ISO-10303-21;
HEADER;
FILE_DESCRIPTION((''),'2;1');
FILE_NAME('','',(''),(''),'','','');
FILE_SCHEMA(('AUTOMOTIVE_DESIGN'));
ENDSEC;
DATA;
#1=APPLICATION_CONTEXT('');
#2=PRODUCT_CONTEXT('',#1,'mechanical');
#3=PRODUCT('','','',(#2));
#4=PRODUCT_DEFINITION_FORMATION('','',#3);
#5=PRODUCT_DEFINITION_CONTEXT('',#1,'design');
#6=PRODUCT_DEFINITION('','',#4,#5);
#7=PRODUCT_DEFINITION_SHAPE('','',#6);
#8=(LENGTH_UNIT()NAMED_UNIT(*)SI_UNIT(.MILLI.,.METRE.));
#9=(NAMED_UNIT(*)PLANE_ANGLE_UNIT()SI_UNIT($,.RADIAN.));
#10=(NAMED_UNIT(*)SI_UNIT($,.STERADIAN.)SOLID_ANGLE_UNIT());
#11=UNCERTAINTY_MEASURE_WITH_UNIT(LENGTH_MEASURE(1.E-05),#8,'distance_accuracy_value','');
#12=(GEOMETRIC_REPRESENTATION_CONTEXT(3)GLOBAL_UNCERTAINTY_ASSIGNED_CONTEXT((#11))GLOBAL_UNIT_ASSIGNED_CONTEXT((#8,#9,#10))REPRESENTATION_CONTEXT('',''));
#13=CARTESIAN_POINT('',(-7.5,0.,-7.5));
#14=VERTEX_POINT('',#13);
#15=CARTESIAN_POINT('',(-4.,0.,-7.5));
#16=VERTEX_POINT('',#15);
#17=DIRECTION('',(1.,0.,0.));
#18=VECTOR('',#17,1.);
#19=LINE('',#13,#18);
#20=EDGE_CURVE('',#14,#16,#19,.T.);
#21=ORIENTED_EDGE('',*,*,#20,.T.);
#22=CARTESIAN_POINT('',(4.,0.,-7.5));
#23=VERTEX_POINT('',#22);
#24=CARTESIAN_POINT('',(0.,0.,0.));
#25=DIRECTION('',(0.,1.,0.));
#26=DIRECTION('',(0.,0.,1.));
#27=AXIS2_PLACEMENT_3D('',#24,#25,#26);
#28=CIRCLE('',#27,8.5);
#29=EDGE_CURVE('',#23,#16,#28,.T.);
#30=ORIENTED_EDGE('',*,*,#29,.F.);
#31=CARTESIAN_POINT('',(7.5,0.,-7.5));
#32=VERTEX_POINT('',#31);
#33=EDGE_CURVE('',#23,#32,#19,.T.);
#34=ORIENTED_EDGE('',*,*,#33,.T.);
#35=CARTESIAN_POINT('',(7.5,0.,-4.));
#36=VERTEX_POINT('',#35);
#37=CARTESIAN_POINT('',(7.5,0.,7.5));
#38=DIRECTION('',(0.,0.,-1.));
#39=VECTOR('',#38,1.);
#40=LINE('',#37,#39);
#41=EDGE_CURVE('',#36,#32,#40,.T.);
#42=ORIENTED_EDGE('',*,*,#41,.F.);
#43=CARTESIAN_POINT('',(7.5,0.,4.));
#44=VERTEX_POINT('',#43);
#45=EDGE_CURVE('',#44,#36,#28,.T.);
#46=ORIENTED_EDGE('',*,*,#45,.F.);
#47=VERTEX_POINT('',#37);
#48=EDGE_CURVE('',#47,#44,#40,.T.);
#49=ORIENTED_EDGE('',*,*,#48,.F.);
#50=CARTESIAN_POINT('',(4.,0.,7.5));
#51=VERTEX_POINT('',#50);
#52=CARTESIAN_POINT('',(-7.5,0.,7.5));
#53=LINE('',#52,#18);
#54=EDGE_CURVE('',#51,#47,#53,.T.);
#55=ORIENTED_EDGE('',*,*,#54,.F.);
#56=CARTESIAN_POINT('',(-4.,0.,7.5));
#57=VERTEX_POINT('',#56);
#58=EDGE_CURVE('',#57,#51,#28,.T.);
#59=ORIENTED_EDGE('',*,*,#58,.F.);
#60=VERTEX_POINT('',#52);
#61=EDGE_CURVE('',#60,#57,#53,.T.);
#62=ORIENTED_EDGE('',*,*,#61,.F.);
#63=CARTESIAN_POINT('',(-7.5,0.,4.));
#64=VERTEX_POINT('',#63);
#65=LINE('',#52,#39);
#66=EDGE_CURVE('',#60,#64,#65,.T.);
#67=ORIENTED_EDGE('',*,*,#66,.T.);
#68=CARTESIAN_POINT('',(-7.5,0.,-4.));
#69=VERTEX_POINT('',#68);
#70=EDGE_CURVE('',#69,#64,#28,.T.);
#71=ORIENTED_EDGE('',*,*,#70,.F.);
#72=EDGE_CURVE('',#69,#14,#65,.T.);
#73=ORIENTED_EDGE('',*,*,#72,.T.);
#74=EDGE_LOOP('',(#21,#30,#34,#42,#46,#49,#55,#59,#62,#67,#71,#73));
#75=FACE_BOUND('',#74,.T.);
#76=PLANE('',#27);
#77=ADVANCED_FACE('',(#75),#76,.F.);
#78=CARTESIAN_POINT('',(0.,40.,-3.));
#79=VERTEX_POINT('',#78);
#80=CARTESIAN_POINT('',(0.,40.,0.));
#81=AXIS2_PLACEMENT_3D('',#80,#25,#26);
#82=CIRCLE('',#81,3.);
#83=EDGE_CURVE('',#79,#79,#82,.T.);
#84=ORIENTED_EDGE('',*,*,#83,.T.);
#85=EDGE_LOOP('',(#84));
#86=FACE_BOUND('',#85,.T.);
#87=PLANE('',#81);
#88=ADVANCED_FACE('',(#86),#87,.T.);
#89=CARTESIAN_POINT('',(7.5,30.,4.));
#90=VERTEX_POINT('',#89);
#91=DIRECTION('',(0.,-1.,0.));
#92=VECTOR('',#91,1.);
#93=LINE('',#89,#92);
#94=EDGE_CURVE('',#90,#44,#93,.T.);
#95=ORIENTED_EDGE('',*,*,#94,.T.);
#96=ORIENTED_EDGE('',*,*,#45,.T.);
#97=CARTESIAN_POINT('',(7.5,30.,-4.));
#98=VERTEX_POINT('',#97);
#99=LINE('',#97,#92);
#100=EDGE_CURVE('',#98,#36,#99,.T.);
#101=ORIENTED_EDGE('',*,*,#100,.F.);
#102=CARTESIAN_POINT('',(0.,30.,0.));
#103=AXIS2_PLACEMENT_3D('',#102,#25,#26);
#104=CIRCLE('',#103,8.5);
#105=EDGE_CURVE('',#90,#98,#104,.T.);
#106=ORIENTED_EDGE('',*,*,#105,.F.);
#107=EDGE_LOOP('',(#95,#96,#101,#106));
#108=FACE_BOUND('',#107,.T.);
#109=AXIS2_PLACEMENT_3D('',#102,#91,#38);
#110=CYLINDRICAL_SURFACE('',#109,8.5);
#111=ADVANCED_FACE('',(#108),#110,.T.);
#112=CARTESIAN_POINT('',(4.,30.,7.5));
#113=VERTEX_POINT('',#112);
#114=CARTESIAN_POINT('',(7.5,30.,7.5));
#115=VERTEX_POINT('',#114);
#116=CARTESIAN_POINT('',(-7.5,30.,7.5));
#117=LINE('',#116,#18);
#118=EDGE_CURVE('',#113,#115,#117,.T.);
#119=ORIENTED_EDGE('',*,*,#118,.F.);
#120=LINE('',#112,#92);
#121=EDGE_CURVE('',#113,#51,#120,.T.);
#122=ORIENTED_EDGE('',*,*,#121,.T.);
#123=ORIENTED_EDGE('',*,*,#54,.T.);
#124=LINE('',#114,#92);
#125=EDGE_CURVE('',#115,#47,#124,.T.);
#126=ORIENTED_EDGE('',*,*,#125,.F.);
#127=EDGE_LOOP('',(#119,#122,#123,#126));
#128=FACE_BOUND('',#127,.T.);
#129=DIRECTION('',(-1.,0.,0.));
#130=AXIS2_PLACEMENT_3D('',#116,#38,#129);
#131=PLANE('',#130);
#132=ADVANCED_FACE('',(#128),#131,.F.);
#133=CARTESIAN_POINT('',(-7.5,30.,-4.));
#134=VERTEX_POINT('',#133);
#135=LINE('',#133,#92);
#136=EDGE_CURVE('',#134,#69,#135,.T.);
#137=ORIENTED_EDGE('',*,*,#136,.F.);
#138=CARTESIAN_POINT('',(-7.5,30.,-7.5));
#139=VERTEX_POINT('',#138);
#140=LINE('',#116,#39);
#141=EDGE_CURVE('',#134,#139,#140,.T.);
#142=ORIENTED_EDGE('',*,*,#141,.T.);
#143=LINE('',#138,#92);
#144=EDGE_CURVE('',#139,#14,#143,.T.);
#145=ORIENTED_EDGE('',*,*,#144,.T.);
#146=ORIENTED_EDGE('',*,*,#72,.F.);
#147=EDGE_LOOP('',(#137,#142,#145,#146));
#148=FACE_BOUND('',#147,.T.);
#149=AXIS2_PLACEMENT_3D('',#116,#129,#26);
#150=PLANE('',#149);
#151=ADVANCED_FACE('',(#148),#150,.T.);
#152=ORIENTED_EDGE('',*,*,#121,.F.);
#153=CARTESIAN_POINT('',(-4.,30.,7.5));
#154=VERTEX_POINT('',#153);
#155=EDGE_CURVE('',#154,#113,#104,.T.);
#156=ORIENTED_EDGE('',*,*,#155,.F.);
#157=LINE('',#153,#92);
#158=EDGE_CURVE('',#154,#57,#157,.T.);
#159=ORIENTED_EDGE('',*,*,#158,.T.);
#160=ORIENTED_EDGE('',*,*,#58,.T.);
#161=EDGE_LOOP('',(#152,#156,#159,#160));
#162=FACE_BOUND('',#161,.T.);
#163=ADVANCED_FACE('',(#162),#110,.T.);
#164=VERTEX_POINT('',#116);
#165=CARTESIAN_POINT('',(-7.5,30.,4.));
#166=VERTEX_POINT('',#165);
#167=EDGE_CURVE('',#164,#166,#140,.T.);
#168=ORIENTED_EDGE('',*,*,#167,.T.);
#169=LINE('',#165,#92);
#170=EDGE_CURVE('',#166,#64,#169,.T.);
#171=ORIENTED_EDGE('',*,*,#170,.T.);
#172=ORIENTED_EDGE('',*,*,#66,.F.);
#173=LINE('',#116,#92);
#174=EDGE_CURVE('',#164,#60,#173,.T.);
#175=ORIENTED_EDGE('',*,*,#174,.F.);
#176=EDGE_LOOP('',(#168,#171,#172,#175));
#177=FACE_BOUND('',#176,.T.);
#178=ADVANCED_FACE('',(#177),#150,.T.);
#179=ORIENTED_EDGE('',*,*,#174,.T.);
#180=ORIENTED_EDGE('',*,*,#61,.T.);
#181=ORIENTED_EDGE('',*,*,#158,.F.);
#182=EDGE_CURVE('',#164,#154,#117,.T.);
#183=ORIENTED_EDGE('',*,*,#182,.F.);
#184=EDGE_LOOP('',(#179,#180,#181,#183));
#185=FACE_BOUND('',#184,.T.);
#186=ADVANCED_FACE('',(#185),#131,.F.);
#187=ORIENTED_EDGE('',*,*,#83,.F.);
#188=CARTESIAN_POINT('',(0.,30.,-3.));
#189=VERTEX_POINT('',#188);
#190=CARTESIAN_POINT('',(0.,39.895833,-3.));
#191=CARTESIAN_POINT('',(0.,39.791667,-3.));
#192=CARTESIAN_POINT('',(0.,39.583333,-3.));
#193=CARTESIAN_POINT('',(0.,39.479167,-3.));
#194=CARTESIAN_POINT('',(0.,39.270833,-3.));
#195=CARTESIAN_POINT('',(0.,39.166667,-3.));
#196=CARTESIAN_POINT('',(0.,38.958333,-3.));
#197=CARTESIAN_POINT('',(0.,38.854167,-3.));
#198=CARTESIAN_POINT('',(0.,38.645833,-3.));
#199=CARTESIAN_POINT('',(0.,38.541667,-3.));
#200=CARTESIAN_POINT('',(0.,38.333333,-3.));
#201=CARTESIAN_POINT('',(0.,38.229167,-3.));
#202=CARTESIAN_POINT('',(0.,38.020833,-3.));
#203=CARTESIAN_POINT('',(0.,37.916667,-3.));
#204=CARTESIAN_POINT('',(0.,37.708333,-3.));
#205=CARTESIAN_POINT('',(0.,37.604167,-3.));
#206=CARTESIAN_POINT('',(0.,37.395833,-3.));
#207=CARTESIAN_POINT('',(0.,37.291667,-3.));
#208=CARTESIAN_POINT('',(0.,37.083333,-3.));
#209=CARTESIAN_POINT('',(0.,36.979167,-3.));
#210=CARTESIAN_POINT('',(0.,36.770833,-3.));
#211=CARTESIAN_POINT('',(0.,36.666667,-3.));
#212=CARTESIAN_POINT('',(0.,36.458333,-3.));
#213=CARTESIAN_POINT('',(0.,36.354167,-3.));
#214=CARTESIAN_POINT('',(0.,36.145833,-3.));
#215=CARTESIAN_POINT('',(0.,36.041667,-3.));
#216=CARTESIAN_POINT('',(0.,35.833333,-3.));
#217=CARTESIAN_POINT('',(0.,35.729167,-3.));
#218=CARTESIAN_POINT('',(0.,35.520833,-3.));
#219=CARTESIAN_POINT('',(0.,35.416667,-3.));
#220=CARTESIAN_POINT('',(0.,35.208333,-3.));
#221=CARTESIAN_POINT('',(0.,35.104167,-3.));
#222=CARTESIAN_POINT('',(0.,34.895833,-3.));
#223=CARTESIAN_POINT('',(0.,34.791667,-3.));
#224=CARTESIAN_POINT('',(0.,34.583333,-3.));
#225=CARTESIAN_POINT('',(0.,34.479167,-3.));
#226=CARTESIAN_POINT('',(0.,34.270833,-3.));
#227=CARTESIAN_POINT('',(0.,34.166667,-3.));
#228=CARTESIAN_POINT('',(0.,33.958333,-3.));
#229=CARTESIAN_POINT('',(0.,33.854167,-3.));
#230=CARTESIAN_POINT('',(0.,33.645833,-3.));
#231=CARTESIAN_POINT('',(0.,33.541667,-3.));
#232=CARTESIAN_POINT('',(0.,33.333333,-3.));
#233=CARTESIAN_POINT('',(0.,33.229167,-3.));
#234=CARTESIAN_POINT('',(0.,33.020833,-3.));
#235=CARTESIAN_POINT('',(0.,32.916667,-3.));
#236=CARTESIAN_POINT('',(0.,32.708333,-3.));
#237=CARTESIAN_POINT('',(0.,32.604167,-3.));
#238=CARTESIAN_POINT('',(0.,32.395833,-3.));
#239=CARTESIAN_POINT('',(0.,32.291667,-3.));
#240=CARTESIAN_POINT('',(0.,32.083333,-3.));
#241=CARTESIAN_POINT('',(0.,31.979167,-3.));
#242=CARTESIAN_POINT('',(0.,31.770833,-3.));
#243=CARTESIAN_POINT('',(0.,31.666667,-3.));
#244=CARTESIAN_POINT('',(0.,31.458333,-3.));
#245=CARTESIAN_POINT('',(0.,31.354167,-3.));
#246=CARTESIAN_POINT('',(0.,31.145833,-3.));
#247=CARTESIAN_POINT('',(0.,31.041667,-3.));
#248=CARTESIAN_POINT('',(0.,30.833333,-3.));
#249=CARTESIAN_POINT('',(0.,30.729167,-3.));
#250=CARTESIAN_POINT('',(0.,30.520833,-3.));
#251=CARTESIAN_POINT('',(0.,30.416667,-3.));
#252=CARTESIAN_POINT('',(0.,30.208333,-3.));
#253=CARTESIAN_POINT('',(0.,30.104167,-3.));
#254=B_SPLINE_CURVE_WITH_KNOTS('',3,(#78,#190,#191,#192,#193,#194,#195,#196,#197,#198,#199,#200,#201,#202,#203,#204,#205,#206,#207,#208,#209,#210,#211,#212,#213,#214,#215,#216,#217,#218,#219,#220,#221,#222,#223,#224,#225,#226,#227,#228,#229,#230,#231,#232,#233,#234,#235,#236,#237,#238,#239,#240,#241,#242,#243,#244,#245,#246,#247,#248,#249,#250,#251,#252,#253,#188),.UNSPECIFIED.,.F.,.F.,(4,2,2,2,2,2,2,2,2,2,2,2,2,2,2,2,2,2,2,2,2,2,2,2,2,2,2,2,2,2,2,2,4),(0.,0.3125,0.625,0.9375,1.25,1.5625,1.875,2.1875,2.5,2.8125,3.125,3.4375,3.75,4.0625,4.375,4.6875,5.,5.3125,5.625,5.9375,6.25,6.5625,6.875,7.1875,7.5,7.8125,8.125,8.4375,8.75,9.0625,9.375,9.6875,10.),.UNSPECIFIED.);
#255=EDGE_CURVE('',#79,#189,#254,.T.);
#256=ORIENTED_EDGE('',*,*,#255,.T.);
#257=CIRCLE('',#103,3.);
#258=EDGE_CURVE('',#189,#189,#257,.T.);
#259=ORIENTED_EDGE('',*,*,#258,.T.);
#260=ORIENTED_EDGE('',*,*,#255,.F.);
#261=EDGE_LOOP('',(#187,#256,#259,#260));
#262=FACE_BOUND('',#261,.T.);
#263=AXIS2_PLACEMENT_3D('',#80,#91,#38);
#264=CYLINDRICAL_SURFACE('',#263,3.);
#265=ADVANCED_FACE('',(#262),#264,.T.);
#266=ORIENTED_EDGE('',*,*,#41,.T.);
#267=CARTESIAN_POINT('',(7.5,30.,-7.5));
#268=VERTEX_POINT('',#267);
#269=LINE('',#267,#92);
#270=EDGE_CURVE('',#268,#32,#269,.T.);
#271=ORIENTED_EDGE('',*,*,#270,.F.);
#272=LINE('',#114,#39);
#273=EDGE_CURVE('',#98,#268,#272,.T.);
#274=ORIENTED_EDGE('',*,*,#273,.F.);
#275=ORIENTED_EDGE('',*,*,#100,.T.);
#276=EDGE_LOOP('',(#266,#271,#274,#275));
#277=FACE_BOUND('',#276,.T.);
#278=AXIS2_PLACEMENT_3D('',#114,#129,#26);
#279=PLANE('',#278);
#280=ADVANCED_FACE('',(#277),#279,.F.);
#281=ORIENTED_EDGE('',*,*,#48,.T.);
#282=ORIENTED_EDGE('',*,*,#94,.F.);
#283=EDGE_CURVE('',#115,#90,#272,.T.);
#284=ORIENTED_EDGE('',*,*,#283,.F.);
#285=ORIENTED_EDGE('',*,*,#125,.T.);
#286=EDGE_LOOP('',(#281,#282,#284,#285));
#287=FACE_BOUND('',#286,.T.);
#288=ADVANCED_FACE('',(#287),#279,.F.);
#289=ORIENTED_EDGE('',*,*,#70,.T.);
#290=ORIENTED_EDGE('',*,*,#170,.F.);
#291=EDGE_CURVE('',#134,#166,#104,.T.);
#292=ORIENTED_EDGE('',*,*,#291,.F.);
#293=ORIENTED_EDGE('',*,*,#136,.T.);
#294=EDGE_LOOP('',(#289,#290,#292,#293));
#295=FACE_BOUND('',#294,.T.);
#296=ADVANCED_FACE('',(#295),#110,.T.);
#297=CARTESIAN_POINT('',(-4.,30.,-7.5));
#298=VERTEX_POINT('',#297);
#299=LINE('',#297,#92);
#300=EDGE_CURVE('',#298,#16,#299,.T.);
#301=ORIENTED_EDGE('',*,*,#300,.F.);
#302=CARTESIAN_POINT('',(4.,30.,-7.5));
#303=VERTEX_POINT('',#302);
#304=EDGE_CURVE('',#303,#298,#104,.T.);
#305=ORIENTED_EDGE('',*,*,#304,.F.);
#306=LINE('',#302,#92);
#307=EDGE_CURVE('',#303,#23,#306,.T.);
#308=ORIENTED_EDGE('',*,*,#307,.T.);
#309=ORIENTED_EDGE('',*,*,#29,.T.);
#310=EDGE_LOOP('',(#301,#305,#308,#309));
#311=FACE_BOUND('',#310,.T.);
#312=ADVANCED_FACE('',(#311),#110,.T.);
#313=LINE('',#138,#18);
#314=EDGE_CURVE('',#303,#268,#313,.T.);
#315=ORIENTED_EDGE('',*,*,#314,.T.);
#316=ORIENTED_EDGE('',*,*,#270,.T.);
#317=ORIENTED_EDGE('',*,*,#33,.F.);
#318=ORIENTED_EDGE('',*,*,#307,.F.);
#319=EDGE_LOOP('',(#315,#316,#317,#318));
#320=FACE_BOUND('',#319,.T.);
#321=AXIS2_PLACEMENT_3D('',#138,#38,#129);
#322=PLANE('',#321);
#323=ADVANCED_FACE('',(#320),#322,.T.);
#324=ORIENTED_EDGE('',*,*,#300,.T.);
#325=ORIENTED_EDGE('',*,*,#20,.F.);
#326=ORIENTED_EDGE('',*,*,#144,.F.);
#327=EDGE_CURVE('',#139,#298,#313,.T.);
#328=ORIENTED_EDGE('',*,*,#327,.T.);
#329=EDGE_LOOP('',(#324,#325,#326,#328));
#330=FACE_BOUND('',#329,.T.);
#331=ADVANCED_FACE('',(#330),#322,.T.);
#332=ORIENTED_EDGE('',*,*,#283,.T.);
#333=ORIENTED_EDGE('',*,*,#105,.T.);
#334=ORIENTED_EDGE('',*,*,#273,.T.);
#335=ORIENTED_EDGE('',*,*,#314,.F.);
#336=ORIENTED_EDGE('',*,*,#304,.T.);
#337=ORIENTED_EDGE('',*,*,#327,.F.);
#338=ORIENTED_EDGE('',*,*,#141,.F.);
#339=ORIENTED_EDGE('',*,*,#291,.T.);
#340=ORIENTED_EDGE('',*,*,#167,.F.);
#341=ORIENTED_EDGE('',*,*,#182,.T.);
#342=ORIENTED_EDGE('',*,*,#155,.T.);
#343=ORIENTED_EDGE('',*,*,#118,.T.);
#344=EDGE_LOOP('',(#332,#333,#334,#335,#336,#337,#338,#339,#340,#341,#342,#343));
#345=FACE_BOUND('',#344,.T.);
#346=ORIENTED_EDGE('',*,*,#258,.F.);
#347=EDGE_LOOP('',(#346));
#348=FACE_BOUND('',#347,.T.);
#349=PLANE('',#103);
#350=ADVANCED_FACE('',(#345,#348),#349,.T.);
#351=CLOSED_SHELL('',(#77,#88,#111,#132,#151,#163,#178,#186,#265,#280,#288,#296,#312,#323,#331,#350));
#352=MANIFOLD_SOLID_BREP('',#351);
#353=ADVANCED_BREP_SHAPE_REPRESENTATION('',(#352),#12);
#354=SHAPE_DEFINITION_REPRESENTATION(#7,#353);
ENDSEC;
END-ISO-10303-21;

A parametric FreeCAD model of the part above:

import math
import FreeCAD as App
import Part
import Sketcher
Q = App.Units.Quantity

doc = App.newDocument("Part")
body = doc.addObject("PartDesign::Body", "Body")

sketch1 = doc.addObject("Sketcher::SketchObject", "Sketch")
body.addObject(sketch1)
sketch1.AttachmentSupport = (doc.XZ_Plane, [""])
sketch1.MapMode = "FlatFace"
sketch1.addGeometry([
    Part.ArcOfCircle(Part.Circle(App.Vector(0, 0, 0), App.Vector(0, 0, 1), 8.5), math.radians(-28.072487), math.radians(28.072487)),
    Part.LineSegment(App.Vector(7.5, -4, 0), App.Vector(7.5, -7.5, 0)),
    Part.LineSegment(App.Vector(7.5, -7.5, 0), App.Vector(4, -7.5, 0)),
    Part.ArcOfCircle(Part.Circle(App.Vector(0, 0, 0), App.Vector(0, 0, 1), 8.5), math.radians(-118.072487), math.radians(-61.927513)),
    Part.LineSegment(App.Vector(-4, -7.5, 0), App.Vector(-7.5, -7.5, 0)),
    Part.LineSegment(App.Vector(-7.5, -7.5, 0), App.Vector(-7.5, -4, 0)),
    Part.ArcOfCircle(Part.Circle(App.Vector(0, 0, 0), App.Vector(0, 0, 1), 8.5), math.radians(151.927513), math.radians(208.072487)),
    Part.LineSegment(App.Vector(-7.5, 4, 0), App.Vector(-7.5, 7.5, 0)),
    Part.LineSegment(App.Vector(-7.5, 7.5, 0), App.Vector(-4, 7.5, 0)),
    Part.ArcOfCircle(Part.Circle(App.Vector(0, 0, 0), App.Vector(0, 0, 1), 8.5), math.radians(61.927513), math.radians(118.072487)),
    Part.LineSegment(App.Vector(4, 7.5, 0), App.Vector(7.5, 7.5, 0)),
    Part.LineSegment(App.Vector(7.5, 7.5, 0), App.Vector(7.5, 4, 0)),
], False)
sketch1.addConstraint([
    Sketcher.Constraint("Coincident", 0, 1, 1, 1),
    Sketcher.Constraint("Coincident", 1, 2, 2, 1),
    Sketcher.Constraint("Coincident", 2, 2, 3, 2),
    Sketcher.Constraint("Coincident", 3, 1, 4, 1),
    Sketcher.Constraint("Coincident", 4, 2, 5, 1),
    Sketcher.Constraint("Coincident", 5, 2, 6, 2),
    Sketcher.Constraint("Coincident", 6, 1, 7, 1),
    Sketcher.Constraint("Coincident", 7, 2, 8, 1),
    Sketcher.Constraint("Coincident", 8, 2, 9, 2),
    Sketcher.Constraint("Coincident", 9, 1, 10, 1),
    Sketcher.Constraint("Coincident", 10, 2, 11, 1),
    Sketcher.Constraint("Coincident", 11, 2, 0, 2),
    Sketcher.Constraint("Vertical", 1),
    Sketcher.Constraint("Horizontal", 2),
    Sketcher.Constraint("Horizontal", 4),
    Sketcher.Constraint("Vertical", 5),
    Sketcher.Constraint("Vertical", 7),
    Sketcher.Constraint("Horizontal", 8),
    Sketcher.Constraint("Horizontal", 10),
    Sketcher.Constraint("Vertical", 11),
    Sketcher.Constraint("Coincident", 0, 3, -1, 1),
    Sketcher.Constraint("Coincident", 3, 3, -1, 1),
    Sketcher.Constraint("Coincident", 6, 3, -1, 1),
    Sketcher.Constraint("Coincident", 9, 3, -1, 1),
    Sketcher.Constraint("Equal", 0, 3),
    Sketcher.Constraint("Equal", 3, 6),
    Sketcher.Constraint("Equal", 6, 9),
    Sketcher.Constraint("Symmetric", 1, 2, 7, 2, -1, 1),
    Sketcher.Constraint("Symmetric", 4, 2, 10, 2, -1, 1),
    Sketcher.Constraint("Symmetric", 1, 2, 4, 2, -2),
    Sketcher.Constraint("Equal", 10, 1),
    Sketcher.Constraint("Radius", 0, Q("8.5 mm")),
    Sketcher.Constraint("DistanceX", 2, 2, 2, 1, Q("3.5 mm")),
])
pad1 = doc.addObject("PartDesign::Pad", "Pad")
body.addObject(pad1)
pad1.Profile = sketch1
pad1.Length = 30
pad1.Reversed = True

sketch2 = doc.addObject("Sketcher::SketchObject", "Sketch001")
body.addObject(sketch2)
sketch2.AttachmentSupport = (doc.XZ_Plane, [""])
sketch2.MapMode = "FlatFace"
sketch2.AttachmentOffset = App.Placement(App.Vector(0, 0, -30), App.Rotation())
sketch2.addGeometry(Part.Circle(App.Vector(0, 0, 0), App.Vector(0, 0, 1), 3), False)
sketch2.addConstraint([
    Sketcher.Constraint("Coincident", 0, 3, -1, 1),
    Sketcher.Constraint("Diameter", 0, Q("6 mm")),
])
pad2 = doc.addObject("PartDesign::Pad", "Pad001")
body.addObject(pad2)
pad2.Profile = sketch2
pad2.Length = 10
pad2.Reversed = True

doc.recompute()
